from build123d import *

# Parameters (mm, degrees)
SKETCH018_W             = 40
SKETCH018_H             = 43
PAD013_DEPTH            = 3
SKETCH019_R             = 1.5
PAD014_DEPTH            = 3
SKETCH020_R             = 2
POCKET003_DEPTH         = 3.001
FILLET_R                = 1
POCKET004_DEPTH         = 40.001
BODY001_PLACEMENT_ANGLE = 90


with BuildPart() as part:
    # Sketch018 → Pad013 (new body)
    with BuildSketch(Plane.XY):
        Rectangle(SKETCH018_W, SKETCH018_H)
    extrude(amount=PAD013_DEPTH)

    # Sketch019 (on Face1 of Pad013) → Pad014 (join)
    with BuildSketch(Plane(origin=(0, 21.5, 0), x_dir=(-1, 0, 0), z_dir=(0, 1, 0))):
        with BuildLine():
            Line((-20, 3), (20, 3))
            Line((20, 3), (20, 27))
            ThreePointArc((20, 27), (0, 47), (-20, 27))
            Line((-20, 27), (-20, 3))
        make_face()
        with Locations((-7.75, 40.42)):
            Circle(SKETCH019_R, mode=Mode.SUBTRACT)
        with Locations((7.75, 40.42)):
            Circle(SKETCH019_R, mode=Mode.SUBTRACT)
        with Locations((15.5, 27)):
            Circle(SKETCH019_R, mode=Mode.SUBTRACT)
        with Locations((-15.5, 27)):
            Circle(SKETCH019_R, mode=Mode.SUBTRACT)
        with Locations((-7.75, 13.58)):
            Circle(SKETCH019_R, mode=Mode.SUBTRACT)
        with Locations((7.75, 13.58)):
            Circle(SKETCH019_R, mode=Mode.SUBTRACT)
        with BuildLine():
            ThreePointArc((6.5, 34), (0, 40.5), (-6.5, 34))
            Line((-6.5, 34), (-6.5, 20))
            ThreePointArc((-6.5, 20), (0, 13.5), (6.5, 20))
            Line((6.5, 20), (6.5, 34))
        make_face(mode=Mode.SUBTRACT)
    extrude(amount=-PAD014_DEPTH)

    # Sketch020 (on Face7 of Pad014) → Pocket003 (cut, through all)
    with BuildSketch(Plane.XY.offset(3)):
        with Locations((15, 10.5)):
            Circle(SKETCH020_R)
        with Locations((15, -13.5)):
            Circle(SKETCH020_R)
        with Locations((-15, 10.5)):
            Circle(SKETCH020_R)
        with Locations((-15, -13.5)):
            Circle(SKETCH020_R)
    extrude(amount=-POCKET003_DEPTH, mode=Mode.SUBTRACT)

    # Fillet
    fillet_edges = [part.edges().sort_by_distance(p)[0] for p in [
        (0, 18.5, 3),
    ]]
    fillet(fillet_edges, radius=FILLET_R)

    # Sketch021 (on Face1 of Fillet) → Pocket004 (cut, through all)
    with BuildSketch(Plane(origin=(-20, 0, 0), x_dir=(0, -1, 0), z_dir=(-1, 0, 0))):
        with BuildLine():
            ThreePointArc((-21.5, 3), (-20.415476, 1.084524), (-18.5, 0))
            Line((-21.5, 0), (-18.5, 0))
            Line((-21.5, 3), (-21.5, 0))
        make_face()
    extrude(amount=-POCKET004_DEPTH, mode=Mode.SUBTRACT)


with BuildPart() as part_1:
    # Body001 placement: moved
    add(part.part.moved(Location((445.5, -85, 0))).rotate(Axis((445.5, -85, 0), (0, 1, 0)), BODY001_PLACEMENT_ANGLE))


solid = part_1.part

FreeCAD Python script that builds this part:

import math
import FreeCAD as App
import Part
import Sketcher


def edges_at(feature, points):
    """Names of the edges that pass closest to the given points."""
    edges = feature.Shape.Edges
    near = lambda p: min(range(len(edges)), key=lambda i: edges[i].distToShape(Part.Vertex(*p))[0])
    return sorted({f"Edge{near(p) + 1}" for p in points})

doc = App.newDocument("Part")
body = doc.addObject("PartDesign::Body", "Body")

# Sketch on XY plane
sketch1 = body.newObject("Sketcher::SketchObject", "Sketch")
sketch1.AttachmentSupport = (doc.getObject("XY_Plane"), [""])
sketch1.MapMode = "FlatFace"
sketch1.addGeometry([
    Part.LineSegment(App.Vector(-20, 22, 0), App.Vector(-20, -22, 0)),
    Part.LineSegment(App.Vector(-20, -22, 0), App.Vector(20, -22, 0)),
    Part.LineSegment(App.Vector(20, -22, 0), App.Vector(20, 22, 0)),
    Part.LineSegment(App.Vector(20, 22, 0), App.Vector(-20, 22, 0)),
], False)
sketch1.addConstraint([
    Sketcher.Constraint("Coincident", 0, 2, 1, 1),
    Sketcher.Constraint("Coincident", 1, 2, 2, 1),
    Sketcher.Constraint("Coincident", 2, 2, 3, 1),
    Sketcher.Constraint("Coincident", 3, 2, 0, 1),
    Sketcher.Constraint("Vertical", 0),
    Sketcher.Constraint("Horizontal", 1),
    Sketcher.Constraint("Vertical", 2),
    Sketcher.Constraint("Horizontal", 3),
    Sketcher.Constraint("Symmetric", 0, 2, 2, 2, -1, 1),
    Sketcher.Constraint("DistanceX", 1, 1, 1, 2, 40.0),
    Sketcher.Constraint("DistanceY", 0, 2, 0, 1, 43.0),
])
pad1 = body.newObject("PartDesign::Pad", "Pad")
pad1.Profile = sketch1
pad1.Length = 3

# Sketch on XZ plane
sketch2 = body.newObject("Sketcher::SketchObject", "Sketch001")
sketch2.AttachmentSupport = (doc.getObject("XZ_Plane"), [""])
sketch2.MapMode = "FlatFace"
sketch2.AttachmentOffset = App.Placement(App.Vector(0, 0, -21.5), App.Rotation())
sketch2.addGeometry([
    Part.LineSegment(App.Vector(20, 3, 0), App.Vector(-20, 3, 0)),  # 0
    Part.LineSegment(App.Vector(-20, 3, 0), App.Vector(-20, 27, 0)),  # 1
    Part.ArcOfCircle(Part.Circle(App.Vector(0, 27, 0), App.Vector(0, 0, 1), 20), math.radians(0), math.radians(180)),  # 2
    Part.LineSegment(App.Vector(20, 27, 0), App.Vector(20, 3, 0)),  # 3
    Part.Circle(App.Vector(7.8, 13.6, 0), App.Vector(0, 0, 1), 1.5),  # 4
    Part.Circle(App.Vector(15.5, 27, 0), App.Vector(0, 0, 1), 1.5),  # 5
    Part.Circle(App.Vector(-7.8, 13.6, 0), App.Vector(0, 0, 1), 1.5),  # 6
    Part.ArcOfCircle(Part.Circle(App.Vector(0, 34, 0), App.Vector(0, 0, 1), 6.5), math.radians(0), math.radians(180)),  # 7
    Part.LineSegment(App.Vector(-6.5, 34, 0), App.Vector(-6.5, 20, 0)),  # 8
    Part.ArcOfCircle(Part.Circle(App.Vector(0, 20, 0), App.Vector(0, 0, 1), 6.5), math.radians(180), math.radians(360)),  # 9
    Part.LineSegment(App.Vector(6.5, 20, 0), App.Vector(6.5, 34, 0)),  # 10
    Part.Circle(App.Vector(-15.5, 27, 0), App.Vector(0, 0, 1), 1.5),  # 11
    Part.Circle(App.Vector(7.8, 40.4, 0), App.Vector(0, 0, 1), 1.5),  # 12
    Part.Circle(App.Vector(-7.8, 40.4, 0), App.Vector(0, 0, 1), 1.5),  # 13
], False)
sketch2.addConstraint([
    Sketcher.Constraint("Coincident", 0, 2, 1, 1),
    Sketcher.Constraint("Tangent", 1, 2, 2, 2),
    Sketcher.Constraint("Tangent", 2, 1, 3, 1),
    Sketcher.Constraint("Coincident", 3, 2, 0, 1),
    Sketcher.Constraint("Tangent", 7, 2, 8, 1),
    Sketcher.Constraint("Tangent", 8, 2, 9, 1),
    Sketcher.Constraint("Tangent", 9, 2, 10, 1),
    Sketcher.Constraint("Tangent", 10, 2, 7, 1),
    Sketcher.Constraint("Horizontal", 0),
    Sketcher.Constraint("Vertical", 1),
    Sketcher.Constraint("Vertical", 3),
    Sketcher.Constraint("Vertical", 8),
    Sketcher.Constraint("Vertical", 10),
    Sketcher.Constraint("Equal", 4, 5),
    Sketcher.Constraint("Equal", 5, 6),
    Sketcher.Constraint("Equal", 6, 11),
    Sketcher.Constraint("Equal", 11, 12),
    Sketcher.Constraint("Equal", 12, 13),
    Sketcher.Constraint("Symmetric", 4, 3, 6, 3, -2),
    Sketcher.Constraint("Symmetric", 5, 3, 11, 3, -2),
    Sketcher.Constraint("Symmetric", 12, 3, 13, 3, -2),
    Sketcher.Constraint("PointOnObject", 2, 3, -2),
    Sketcher.Constraint("PointOnObject", 7, 3, -2),
    Sketcher.Constraint("Horizontal", 2, 3, 5, 3),
    Sketcher.Constraint("Vertical", 4, 3, 12, 3),
    Sketcher.Constraint("Diameter", 4, 3.0),
    Sketcher.Constraint("Radius", 2, 20.0),
    Sketcher.Constraint("Radius", 7, 6.5),
    Sketcher.Constraint("DistanceY", 1, 1, 1, 2, 24.0),
    Sketcher.Constraint("DistanceY", 8, 2, 8, 1, 14.0),
    Sketcher.Constraint("DistanceY", -1, 1, 2, 3, 27.0),
    Sketcher.Constraint("DistanceY", -1, 1, 7, 3, 34.0),
    Sketcher.Constraint("DistanceX", 11, 3, 7, 2, 9.0),
    Sketcher.Constraint("DistanceX", 6, 3, 4, 3, 15.5),
    Sketcher.Constraint("DistanceY", -1, 1, 4, 3, 13.58),
    Sketcher.Constraint("DistanceY", -1, 1, 12, 3, 40.42),
])
pad2 = body.newObject("PartDesign::Pad", "Pad001")
pad2.Profile = sketch2
pad2.Length = 3

# Sketch on XY plane
sketch3 = body.newObject("Sketcher::SketchObject", "Sketch002")
sketch3.AttachmentSupport = (doc.getObject("XY_Plane"), [""])
sketch3.MapMode = "FlatFace"
sketch3.AttachmentOffset = App.Placement(App.Vector(0, 0, 3), App.Rotation())
sketch3.addGeometry([
    Part.Circle(App.Vector(15, 10.5, 0), App.Vector(0, 0, 1), 2),
    Part.Circle(App.Vector(15, -13.5, 0), App.Vector(0, 0, 1), 2),
    Part.Circle(App.Vector(-15, 10.5, 0), App.Vector(0, 0, 1), 2),
    Part.Circle(App.Vector(-15, -13.5, 0), App.Vector(0, 0, 1), 2),
], False)
sketch3.addConstraint([
    Sketcher.Constraint("Equal", 0, 1),
    Sketcher.Constraint("Equal", 1, 2),
    Sketcher.Constraint("Equal", 2, 3),
    Sketcher.Constraint("Symmetric", 0, 3, 2, 3, -2),
    Sketcher.Constraint("Symmetric", 1, 3, 3, 3, -2),
    Sketcher.Constraint("Vertical", 0, 3, 1, 3),
    Sketcher.Constraint("Diameter", 0, 4.0),
    Sketcher.Constraint("DistanceX", -1, 1, 0, 3, 15.0),
    Sketcher.Constraint("DistanceY", 1, 3, 0, 3, 24.0),
    Sketcher.Constraint("DistanceY", -1, 1, 0, 3, 10.5),
])
pocket1 = body.newObject("PartDesign::Pocket", "Pocket")
pocket1.Profile = sketch3
pocket1.Type = "ThroughAll"
doc.recompute()

fillet = body.newObject("PartDesign::Fillet", "Fillet")
fillet.Base = (pocket1, edges_at(pocket1, [(0, 18.5, 3)]))
fillet.Radius = 1

# Sketch on YZ plane
sketch4 = body.newObject("Sketcher::SketchObject", "Sketch003")
sketch4.AttachmentSupport = (doc.getObject("YZ_Plane"), [""])
sketch4.MapMode = "FlatFace"
sketch4.AttachmentOffset = App.Placement(App.Vector(0, 0, -20), App.Rotation())
sketch4.addGeometry([
    Part.ArcOfCircle(Part.Circle(App.Vector(17.5, 4, 0), App.Vector(0, 0, 1), 4.1), math.radians(-76), math.radians(-14)),
    Part.LineSegment(App.Vector(21.5, 3, 0), App.Vector(21.5, 0, 0)),
    Part.LineSegment(App.Vector(21.5, 0, 0), App.Vector(18.5, 0, 0)),
], False)
sketch4.addConstraint([
    Sketcher.Constraint("Coincident", 0, 2, 1, 1),
    Sketcher.Constraint("Coincident", 1, 2, 2, 1),
    Sketcher.Constraint("Coincident", 2, 2, 0, 1),
    Sketcher.Constraint("Vertical", 1),
    Sketcher.Constraint("Horizontal", 2),
    Sketcher.Constraint("PointOnObject", 1, 2, -1),
    Sketcher.Constraint("Equal", 2, 1),
    Sketcher.Constraint("DistanceX", 2, 2, 2, 1, 3.0),
    Sketcher.Constraint("DistanceY", -1, 1, 0, 3, 4.0),
    Sketcher.Constraint("DistanceX", -1, 1, 0, 3, 17.5),
])
pocket2 = body.newObject("PartDesign::Pocket", "Pocket001")
pocket2.Profile = sketch4
pocket2.Type = "ThroughAll"
pocket2.Reversed = True
body2 = doc.addObject("PartDesign::Body", "Body001")
doc.recompute()

body.Placement = App.Placement(App.Vector(445.5, -85, 0), App.Rotation(App.Vector(0, 1, 0), 90))
boolean = body2.newObject("PartDesign::Boolean", "Boolean")
boolean.Type = "Fuse"
boolean.addObjects([body])

doc.recompute()
